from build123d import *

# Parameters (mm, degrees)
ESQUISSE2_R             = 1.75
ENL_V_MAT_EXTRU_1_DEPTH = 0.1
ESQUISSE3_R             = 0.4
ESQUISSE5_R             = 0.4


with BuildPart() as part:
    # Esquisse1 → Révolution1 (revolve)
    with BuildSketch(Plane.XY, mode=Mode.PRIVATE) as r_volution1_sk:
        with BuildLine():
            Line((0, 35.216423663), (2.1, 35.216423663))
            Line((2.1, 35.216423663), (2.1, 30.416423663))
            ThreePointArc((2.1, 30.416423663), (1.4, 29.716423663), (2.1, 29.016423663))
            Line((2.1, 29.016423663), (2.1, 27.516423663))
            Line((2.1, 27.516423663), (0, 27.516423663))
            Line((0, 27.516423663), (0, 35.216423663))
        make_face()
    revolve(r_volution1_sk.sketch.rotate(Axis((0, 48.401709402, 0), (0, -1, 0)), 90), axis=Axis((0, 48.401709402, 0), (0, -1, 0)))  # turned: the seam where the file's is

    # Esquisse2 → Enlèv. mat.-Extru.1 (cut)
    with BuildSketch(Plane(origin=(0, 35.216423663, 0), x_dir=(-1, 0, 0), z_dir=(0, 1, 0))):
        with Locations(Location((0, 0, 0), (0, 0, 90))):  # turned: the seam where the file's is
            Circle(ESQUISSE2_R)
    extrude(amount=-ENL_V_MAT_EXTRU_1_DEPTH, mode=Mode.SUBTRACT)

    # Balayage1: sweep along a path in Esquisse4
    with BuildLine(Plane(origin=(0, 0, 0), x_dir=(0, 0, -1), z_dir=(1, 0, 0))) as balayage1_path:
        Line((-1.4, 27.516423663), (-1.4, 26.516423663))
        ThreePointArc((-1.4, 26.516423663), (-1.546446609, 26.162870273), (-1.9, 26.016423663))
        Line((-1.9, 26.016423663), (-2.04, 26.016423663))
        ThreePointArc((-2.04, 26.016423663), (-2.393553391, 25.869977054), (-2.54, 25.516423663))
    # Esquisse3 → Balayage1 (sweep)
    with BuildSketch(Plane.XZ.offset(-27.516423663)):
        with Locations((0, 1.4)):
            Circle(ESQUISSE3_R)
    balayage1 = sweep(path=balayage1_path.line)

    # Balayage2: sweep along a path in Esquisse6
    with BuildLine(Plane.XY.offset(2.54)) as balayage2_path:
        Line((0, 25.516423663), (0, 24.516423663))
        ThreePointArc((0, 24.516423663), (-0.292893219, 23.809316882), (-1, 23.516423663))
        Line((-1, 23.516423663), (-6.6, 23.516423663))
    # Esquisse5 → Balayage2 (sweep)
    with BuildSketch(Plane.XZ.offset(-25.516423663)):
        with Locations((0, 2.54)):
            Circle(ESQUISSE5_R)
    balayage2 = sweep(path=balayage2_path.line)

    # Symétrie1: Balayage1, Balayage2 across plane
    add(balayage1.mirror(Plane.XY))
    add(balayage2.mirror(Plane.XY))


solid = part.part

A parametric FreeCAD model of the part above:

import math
import FreeCAD as App
import Part
import Sketcher

doc = App.newDocument("Part")
body = doc.addObject("PartDesign::Body", "Body")

# Sketch on XY plane
sketch1 = body.newObject("Sketcher::SketchObject", "Sketch")
sketch1.AttachmentSupport = (doc.getObject("XY_Plane"), [""])
sketch1.MapMode = "FlatFace"
sketch1.addGeometry([
    Part.LineSegment(App.Vector(2.1, 35.216424, 0), App.Vector(0, 35.216424, 0)),  # 0
    Part.LineSegment(App.Vector(0, 35.216424, 0), App.Vector(0, 27.516424, 0)),  # 1
    Part.LineSegment(App.Vector(0, 27.516424, 0), App.Vector(2.1, 27.516424, 0)),  # 2
    Part.LineSegment(App.Vector(2.1, 27.516424, 0), App.Vector(2.1, 29.016424, 0)),  # 3
    Part.ArcOfCircle(Part.Circle(App.Vector(2.1, 29.716424, 0), App.Vector(0, 0, 1), 0.7), math.radians(90), math.radians(270)),  # 4
    Part.LineSegment(App.Vector(2.1, 30.416424, 0), App.Vector(2.1, 35.216424, 0)),  # 5
], False)
sketch1.addConstraint([
    Sketcher.Constraint("Coincident", 0, 2, 1, 1),
    Sketcher.Constraint("Coincident", 1, 2, 2, 1),
    Sketcher.Constraint("Coincident", 2, 2, 3, 1),
    Sketcher.Constraint("Coincident", 3, 2, 4, 2),
    Sketcher.Constraint("Coincident", 4, 1, 5, 1),
    Sketcher.Constraint("Coincident", 5, 2, 0, 1),
    Sketcher.Constraint("Horizontal", 0),
    Sketcher.Constraint("Vertical", 1),
    Sketcher.Constraint("Horizontal", 2),
    Sketcher.Constraint("Vertical", 3),
    Sketcher.Constraint("Vertical", 5),
    Sketcher.Constraint("PointOnObject", 0, 2, -2),
    Sketcher.Constraint("Vertical", 4, 3, 2, 2),
    Sketcher.Constraint("Vertical", 3, 2, 4, 1),
    Sketcher.Constraint("Radius", 4, 0.7),
    Sketcher.Constraint("DistanceX", 0, 2, 0, 1, 2.1),
    Sketcher.Constraint("DistanceY", 1, 2, 1, 1, 7.7),
    Sketcher.Constraint("DistanceY", 3, 1, 3, 2, 1.5),
    Sketcher.Constraint("DistanceY", -1, 1, 4, 3, 29.716424),
])
revolution = body.newObject("PartDesign::Revolution", "Revolution")
revolution.Profile = sketch1
revolution.ReferenceAxis = (sketch1, ["V_Axis"])
revolution.Angle = 360

# Sketch on XZ plane
sketch2 = body.newObject("Sketcher::SketchObject", "Sketch001")
sketch2.AttachmentSupport = (doc.getObject("XZ_Plane"), [""])
sketch2.MapMode = "FlatFace"
sketch2.AttachmentOffset = App.Placement(App.Vector(0, 0, -35.216424), App.Rotation())
sketch2.addGeometry(Part.Circle(App.Vector(0, 0, 0), App.Vector(0, 0, 1), 1.75), False)
sketch2.addConstraint([
    Sketcher.Constraint("Coincident", 0, 3, -1, 1),
    Sketcher.Constraint("Diameter", 0, 3.5),
])
pocket1 = body.newObject("PartDesign::Pocket", "Pocket")
pocket1.Profile = sketch2
pocket1.Length = 0.1
pocket1.Reversed = True

# Sketch on XZ plane
sketch3 = body.newObject("Sketcher::SketchObject", "Sketch002")
sketch3.AttachmentSupport = (doc.getObject("XZ_Plane"), [""])
sketch3.MapMode = "FlatFace"
sketch3.AttachmentOffset = App.Placement(App.Vector(0, 0, -27.516424), App.Rotation())
sketch3.addGeometry(Part.Circle(App.Vector(0, 1.4, 0), App.Vector(0, 0, 1), 0.4), False)
sketch3.addConstraint([
    Sketcher.Constraint("PointOnObject", 0, 3, -2),
    Sketcher.Constraint("Diameter", 0, 0.8),
    Sketcher.Constraint("DistanceY", -1, 1, 0, 3, 1.4),
])

# Sketch on YZ plane
sketch4 = body.newObject("Sketcher::SketchObject", "Sketch003")
sketch4.AttachmentSupport = (doc.getObject("YZ_Plane"), [""])
sketch4.MapMode = "FlatFace"
sketch4.addGeometry([
    Part.LineSegment(App.Vector(27.516424, 1.4, 0), App.Vector(26.516424, 1.4, 0)),
    Part.ArcOfCircle(Part.Circle(App.Vector(26.516424, 1.9, 0), App.Vector(0, 0, 1), 0.5), math.radians(180), math.radians(270)),
    Part.LineSegment(App.Vector(26.016424, 1.9, 0), App.Vector(26.016424, 2.04, 0)),
    Part.ArcOfCircle(Part.Circle(App.Vector(25.516424, 2.04, 0), App.Vector(0, 0, 1), 0.5), math.radians(0), math.radians(90)),
], False)
sketch4.addConstraint([
    Sketcher.Constraint("Tangent", 0, 2, 1, 2),
    Sketcher.Constraint("Tangent", 1, 1, 2, 1),
    Sketcher.Constraint("Tangent", 2, 2, 3, 1),
    Sketcher.Constraint("Horizontal", 0),
    Sketcher.Constraint("Vertical", 2),
    Sketcher.Constraint("Equal", 1, 3),
    Sketcher.Constraint("Radius", 1, 0.5),
    Sketcher.Constraint("DistanceX", 0, 2, 0, 1, 1.0),
    Sketcher.Constraint("DistanceX", 3, 2, 1, 3, 1.0),
    Sketcher.Constraint("DistanceY", 2, 1, 2, 2, 0.14),
    Sketcher.Constraint("DistanceY", -1, 1, 1, 3, 1.9),
    Sketcher.Constraint("DistanceX", -1, 1, 1, 3, 26.516424),
])
doc.recompute()

additivepipe = body.newObject("PartDesign::AdditivePipe", "AdditivePipe")
additivepipe.Profile = sketch3
additivepipe.Spine = (sketch4, ["Edge1", "Edge2", "Edge3", "Edge4"])

# Sketch on XZ plane
sketch5 = body.newObject("Sketcher::SketchObject", "Sketch004")
sketch5.AttachmentSupport = (doc.getObject("XZ_Plane"), [""])
sketch5.MapMode = "FlatFace"
sketch5.AttachmentOffset = App.Placement(App.Vector(0, 0, -25.516424), App.Rotation())
sketch5.addGeometry(Part.Circle(App.Vector(0, 2.54, 0), App.Vector(0, 0, 1), 0.4), False)
sketch5.addConstraint([
    Sketcher.Constraint("PointOnObject", 0, 3, -2),
    Sketcher.Constraint("Diameter", 0, 0.8),
    Sketcher.Constraint("DistanceY", -1, 1, 0, 3, 2.54),
])

# Sketch on XY plane
sketch6 = body.newObject("Sketcher::SketchObject", "Sketch005")
sketch6.AttachmentSupport = (doc.getObject("XY_Plane"), [""])
sketch6.MapMode = "FlatFace"
sketch6.AttachmentOffset = App.Placement(App.Vector(0, 0, 2.54), App.Rotation())
sketch6.addGeometry([
    Part.LineSegment(App.Vector(0, 25.516424, 0), App.Vector(0, 24.516424, 0)),
    Part.ArcOfCircle(Part.Circle(App.Vector(-1, 24.516424, 0), App.Vector(0, 0, 1), 1), math.radians(-90), math.radians(0)),
    Part.LineSegment(App.Vector(-1, 23.516424, 0), App.Vector(-6.6, 23.516424, 0)),
], False)
sketch6.addConstraint([
    Sketcher.Constraint("Tangent", 0, 2, 1, 2),
    Sketcher.Constraint("Tangent", 1, 1, 2, 1),
    Sketcher.Constraint("Vertical", 0),
    Sketcher.Constraint("Horizontal", 2),
    Sketcher.Constraint("PointOnObject", 0, 1, -2),
    Sketcher.Constraint("Radius", 1, 1.0),
    Sketcher.Constraint("DistanceY", 0, 2, 0, 1, 1.0),
    Sketcher.Constraint("DistanceX", 2, 2, 2, 1, 5.6),
    Sketcher.Constraint("DistanceY", -1, 1, 1, 3, 24.516424),
])
doc.recompute()

additivepipe2 = body.newObject("PartDesign::AdditivePipe", "AdditivePipe001")
additivepipe2.Profile = sketch5
additivepipe2.Spine = (sketch6, ["Edge1", "Edge2", "Edge3"])
doc.recompute()

mirrored = body.newObject("PartDesign::Mirrored", "Mirrored")
mirrored.Originals = [additivepipe, additivepipe2]
mirrored.MirrorPlane = (doc.getObject("XY_Plane"), [""])
body.Tip = mirrored

doc.recompute()
